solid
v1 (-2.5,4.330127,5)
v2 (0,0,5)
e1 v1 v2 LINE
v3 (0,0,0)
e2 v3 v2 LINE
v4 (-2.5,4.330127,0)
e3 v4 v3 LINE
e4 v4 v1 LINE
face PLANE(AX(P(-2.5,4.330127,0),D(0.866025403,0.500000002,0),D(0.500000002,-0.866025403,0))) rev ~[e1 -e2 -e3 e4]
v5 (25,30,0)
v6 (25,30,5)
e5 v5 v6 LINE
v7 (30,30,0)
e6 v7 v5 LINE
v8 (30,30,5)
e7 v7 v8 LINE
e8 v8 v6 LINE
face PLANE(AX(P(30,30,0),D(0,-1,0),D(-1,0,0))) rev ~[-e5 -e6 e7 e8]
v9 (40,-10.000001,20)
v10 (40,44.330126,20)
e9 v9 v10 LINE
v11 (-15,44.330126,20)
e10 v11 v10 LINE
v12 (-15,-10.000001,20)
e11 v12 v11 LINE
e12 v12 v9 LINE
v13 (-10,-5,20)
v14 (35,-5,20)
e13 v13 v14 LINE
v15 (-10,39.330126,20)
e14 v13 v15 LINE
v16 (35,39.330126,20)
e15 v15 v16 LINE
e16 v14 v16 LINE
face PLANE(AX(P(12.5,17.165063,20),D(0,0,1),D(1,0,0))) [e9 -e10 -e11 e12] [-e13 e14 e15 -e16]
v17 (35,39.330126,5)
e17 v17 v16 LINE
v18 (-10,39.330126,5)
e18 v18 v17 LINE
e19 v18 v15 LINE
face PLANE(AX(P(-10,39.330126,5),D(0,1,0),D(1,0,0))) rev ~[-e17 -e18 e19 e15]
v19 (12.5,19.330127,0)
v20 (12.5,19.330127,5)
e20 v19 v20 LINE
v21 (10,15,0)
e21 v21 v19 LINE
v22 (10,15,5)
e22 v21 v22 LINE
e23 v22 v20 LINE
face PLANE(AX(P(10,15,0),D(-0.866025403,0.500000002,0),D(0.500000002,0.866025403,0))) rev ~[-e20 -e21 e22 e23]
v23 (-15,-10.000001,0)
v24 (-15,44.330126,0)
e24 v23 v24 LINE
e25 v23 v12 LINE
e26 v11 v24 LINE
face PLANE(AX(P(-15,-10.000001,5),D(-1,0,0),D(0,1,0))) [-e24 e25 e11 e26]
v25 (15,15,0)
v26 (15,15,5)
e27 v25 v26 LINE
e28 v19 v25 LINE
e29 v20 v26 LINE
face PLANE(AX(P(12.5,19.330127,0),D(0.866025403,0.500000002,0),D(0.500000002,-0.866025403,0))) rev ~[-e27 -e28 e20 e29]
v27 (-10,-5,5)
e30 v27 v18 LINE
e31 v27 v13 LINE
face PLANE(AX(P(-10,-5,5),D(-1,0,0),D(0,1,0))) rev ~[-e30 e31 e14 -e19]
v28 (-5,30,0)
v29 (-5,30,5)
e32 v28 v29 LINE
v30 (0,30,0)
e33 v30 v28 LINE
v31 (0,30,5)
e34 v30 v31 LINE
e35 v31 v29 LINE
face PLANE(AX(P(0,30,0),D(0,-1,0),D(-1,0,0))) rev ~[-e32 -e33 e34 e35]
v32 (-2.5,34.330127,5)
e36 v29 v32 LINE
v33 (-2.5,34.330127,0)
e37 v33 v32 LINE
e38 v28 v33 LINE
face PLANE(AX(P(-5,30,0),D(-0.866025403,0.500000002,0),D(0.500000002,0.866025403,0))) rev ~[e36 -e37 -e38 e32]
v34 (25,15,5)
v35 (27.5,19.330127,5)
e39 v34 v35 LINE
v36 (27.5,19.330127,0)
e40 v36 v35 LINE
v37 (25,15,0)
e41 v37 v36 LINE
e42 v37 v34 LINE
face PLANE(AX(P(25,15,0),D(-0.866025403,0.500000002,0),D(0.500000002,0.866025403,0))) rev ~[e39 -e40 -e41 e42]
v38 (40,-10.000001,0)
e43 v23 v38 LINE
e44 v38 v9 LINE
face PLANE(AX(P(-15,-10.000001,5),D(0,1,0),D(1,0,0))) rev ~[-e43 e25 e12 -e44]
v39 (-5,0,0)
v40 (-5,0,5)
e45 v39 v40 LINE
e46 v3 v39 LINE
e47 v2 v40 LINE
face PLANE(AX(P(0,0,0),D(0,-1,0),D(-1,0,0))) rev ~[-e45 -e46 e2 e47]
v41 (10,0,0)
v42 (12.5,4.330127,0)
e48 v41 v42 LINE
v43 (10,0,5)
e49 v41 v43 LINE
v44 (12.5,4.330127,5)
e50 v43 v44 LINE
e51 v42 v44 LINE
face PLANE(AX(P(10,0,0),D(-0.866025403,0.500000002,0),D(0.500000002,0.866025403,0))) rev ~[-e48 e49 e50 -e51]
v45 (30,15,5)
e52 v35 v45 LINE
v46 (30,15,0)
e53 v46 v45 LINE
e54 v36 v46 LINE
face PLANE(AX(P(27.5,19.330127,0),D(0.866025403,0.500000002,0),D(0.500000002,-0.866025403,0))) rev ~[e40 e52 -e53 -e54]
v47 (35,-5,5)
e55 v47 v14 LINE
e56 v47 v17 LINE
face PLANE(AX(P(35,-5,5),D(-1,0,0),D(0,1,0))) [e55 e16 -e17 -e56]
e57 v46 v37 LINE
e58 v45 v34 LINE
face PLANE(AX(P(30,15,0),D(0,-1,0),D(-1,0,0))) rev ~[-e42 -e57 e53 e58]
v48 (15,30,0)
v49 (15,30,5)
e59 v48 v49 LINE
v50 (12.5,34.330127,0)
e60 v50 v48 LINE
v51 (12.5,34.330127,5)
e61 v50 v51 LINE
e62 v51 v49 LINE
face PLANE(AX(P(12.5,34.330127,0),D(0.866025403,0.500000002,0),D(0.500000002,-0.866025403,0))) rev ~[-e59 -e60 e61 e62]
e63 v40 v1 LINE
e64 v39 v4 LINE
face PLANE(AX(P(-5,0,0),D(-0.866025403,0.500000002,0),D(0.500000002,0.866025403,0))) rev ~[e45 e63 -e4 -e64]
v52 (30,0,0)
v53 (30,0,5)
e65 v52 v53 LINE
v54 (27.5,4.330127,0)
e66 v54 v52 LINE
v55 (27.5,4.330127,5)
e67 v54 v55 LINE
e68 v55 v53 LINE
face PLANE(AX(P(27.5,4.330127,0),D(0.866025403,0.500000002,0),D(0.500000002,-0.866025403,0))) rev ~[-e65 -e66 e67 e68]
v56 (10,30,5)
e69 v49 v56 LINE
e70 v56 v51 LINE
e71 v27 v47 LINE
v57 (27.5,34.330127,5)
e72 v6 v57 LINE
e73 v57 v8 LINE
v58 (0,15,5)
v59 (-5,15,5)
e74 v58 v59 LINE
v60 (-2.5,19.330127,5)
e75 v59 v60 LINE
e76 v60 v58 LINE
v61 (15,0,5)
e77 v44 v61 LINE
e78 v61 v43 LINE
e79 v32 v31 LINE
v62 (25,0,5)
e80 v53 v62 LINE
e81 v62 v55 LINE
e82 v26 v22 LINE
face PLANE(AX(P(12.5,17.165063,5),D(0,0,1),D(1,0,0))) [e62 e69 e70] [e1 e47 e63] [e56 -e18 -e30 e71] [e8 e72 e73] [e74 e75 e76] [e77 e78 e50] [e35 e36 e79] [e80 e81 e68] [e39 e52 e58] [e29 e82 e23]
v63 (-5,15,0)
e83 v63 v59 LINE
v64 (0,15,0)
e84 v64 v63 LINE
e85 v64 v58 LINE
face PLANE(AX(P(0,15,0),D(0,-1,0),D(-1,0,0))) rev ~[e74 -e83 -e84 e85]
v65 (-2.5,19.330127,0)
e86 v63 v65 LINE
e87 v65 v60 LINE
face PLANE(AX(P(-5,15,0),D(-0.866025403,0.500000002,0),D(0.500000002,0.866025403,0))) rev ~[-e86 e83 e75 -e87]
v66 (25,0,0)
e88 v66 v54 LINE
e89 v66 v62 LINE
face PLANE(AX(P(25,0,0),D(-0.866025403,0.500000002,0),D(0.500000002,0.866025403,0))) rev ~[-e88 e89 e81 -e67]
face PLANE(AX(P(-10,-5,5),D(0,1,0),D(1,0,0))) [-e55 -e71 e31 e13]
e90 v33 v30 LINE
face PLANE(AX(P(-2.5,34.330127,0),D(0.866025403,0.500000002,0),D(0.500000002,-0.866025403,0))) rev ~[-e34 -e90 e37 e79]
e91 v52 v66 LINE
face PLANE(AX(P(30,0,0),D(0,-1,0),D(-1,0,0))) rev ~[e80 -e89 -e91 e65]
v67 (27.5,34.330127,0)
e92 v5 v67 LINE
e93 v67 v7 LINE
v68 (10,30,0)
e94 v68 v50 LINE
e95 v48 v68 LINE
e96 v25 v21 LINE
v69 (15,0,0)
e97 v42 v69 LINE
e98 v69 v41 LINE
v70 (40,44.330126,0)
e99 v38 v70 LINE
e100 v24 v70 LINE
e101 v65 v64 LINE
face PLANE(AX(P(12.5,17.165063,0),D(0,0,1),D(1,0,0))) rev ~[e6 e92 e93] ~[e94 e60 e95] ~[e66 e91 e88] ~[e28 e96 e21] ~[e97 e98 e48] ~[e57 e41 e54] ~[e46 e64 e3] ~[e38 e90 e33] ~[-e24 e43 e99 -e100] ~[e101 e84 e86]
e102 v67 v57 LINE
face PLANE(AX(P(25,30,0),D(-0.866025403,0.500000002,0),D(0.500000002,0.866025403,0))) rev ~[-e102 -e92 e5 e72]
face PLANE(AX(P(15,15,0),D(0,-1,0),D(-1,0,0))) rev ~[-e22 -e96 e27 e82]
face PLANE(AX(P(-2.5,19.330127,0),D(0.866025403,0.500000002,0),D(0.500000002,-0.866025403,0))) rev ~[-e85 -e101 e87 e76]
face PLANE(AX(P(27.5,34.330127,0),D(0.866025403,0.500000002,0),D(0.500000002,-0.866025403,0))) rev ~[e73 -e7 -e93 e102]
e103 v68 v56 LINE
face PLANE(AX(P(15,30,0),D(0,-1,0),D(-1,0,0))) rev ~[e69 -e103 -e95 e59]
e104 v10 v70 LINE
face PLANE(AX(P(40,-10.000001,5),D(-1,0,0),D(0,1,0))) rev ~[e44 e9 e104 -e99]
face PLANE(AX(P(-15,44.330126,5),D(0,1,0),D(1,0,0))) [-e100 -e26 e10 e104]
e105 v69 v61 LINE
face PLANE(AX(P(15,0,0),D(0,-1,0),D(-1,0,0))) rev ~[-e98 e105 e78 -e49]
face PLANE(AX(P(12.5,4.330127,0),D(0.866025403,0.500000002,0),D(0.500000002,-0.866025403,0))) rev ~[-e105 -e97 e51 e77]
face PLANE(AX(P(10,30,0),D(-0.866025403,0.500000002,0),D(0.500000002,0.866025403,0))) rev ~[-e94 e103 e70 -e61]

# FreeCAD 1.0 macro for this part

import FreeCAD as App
import Part
import Sketcher
Q = App.Units.Quantity

doc = App.newDocument("Part")
body = doc.addObject("PartDesign::Body", "Body")

sketch1 = body.newObject("Sketcher::SketchObject", "Sketch")
sketch1.AttachmentSupport = (doc.getObject("XY_Plane"), [""])
sketch1.MapMode = "FlatFace"
sketch1.addGeometry([
    Part.LineSegment(App.Vector(-15, 44.3, 0), App.Vector(-15, -10, 0)),
    Part.LineSegment(App.Vector(-15, -10, 0), App.Vector(40, -10, 0)),
    Part.LineSegment(App.Vector(40, -10, 0), App.Vector(40, 44.3, 0)),
    Part.LineSegment(App.Vector(40, 44.3, 0), App.Vector(-15, 44.3, 0)),
    Part.LineSegment(App.Vector(0, 0, 0), App.Vector(-5, 0, 0)),
    Part.LineSegment(App.Vector(-5, 0, 0), App.Vector(-2.5, 4.3, 0)),
    Part.LineSegment(App.Vector(-2.5, 4.3, 0), App.Vector(0, 0, 0)),
    Part.LineSegment(App.Vector(12.5, 4.3, 0), App.Vector(15, 0, 0)),
    Part.LineSegment(App.Vector(15, 0, 0), App.Vector(10, 0, 0)),
    Part.LineSegment(App.Vector(10, 0, 0), App.Vector(12.5, 4.3, 0)),
    Part.LineSegment(App.Vector(27.5, 4.3, 0), App.Vector(30, 0, 0)),
    Part.LineSegment(App.Vector(30, 0, 0), App.Vector(25, 0, 0)),
    Part.LineSegment(App.Vector(25, 0, 0), App.Vector(27.5, 4.3, 0)),
    Part.LineSegment(App.Vector(-2.5, 19.3, 0), App.Vector(0, 15, 0)),
    Part.LineSegment(App.Vector(0, 15, 0), App.Vector(-5, 15, 0)),
    Part.LineSegment(App.Vector(-5, 15, 0), App.Vector(-2.5, 19.3, 0)),
    Part.LineSegment(App.Vector(-2.5, 34.3, 0), App.Vector(0, 30, 0)),
    Part.LineSegment(App.Vector(0, 30, 0), App.Vector(-5, 30, 0)),
    Part.LineSegment(App.Vector(-5, 30, 0), App.Vector(-2.5, 34.3, 0)),
    Part.LineSegment(App.Vector(12.5, 19.3, 0), App.Vector(15, 15, 0)),
    Part.LineSegment(App.Vector(15, 15, 0), App.Vector(10, 15, 0)),
    Part.LineSegment(App.Vector(10, 15, 0), App.Vector(12.5, 19.3, 0)),
    Part.LineSegment(App.Vector(27.5, 19.3, 0), App.Vector(30, 15, 0)),
    Part.LineSegment(App.Vector(30, 15, 0), App.Vector(25, 15, 0)),
    Part.LineSegment(App.Vector(25, 15, 0), App.Vector(27.5, 19.3, 0)),
    Part.LineSegment(App.Vector(12.5, 34.3, 0), App.Vector(15, 30, 0)),
    Part.LineSegment(App.Vector(15, 30, 0), App.Vector(10, 30, 0)),
    Part.LineSegment(App.Vector(10, 30, 0), App.Vector(12.5, 34.3, 0)),
    Part.LineSegment(App.Vector(27.5, 34.3, 0), App.Vector(30, 30, 0)),
    Part.LineSegment(App.Vector(30, 30, 0), App.Vector(25, 30, 0)),
    Part.LineSegment(App.Vector(25, 30, 0), App.Vector(27.5, 34.3, 0)),
], False)
sketch1.addConstraint([
    Sketcher.Constraint("Coincident", 0, 2, 1, 1),
    Sketcher.Constraint("Coincident", 1, 2, 2, 1),
    Sketcher.Constraint("Coincident", 2, 2, 3, 1),
    Sketcher.Constraint("Coincident", 3, 2, 0, 1),
    Sketcher.Constraint("Coincident", 4, 2, 5, 1),
    Sketcher.Constraint("Coincident", 5, 2, 6, 1),
    Sketcher.Constraint("Coincident", 6, 2, 4, 1),
    Sketcher.Constraint("Coincident", 7, 2, 8, 1),
    Sketcher.Constraint("Coincident", 8, 2, 9, 1),
    Sketcher.Constraint("Coincident", 9, 2, 7, 1),
    Sketcher.Constraint("Coincident", 10, 2, 11, 1),
    Sketcher.Constraint("Coincident", 11, 2, 12, 1),
    Sketcher.Constraint("Coincident", 12, 2, 10, 1),
    Sketcher.Constraint("Coincident", 13, 2, 14, 1),
    Sketcher.Constraint("Coincident", 14, 2, 15, 1),
    Sketcher.Constraint("Coincident", 15, 2, 13, 1),
    Sketcher.Constraint("Coincident", 16, 2, 17, 1),
    Sketcher.Constraint("Coincident", 17, 2, 18, 1),
    Sketcher.Constraint("Coincident", 18, 2, 16, 1),
    Sketcher.Constraint("Coincident", 19, 2, 20, 1),
    Sketcher.Constraint("Coincident", 20, 2, 21, 1),
    Sketcher.Constraint("Coincident", 21, 2, 19, 1),
    Sketcher.Constraint("Coincident", 22, 2, 23, 1),
    Sketcher.Constraint("Coincident", 23, 2, 24, 1),
    Sketcher.Constraint("Coincident", 24, 2, 22, 1),
    Sketcher.Constraint("Coincident", 25, 2, 26, 1),
    Sketcher.Constraint("Coincident", 26, 2, 27, 1),
    Sketcher.Constraint("Coincident", 27, 2, 25, 1),
    Sketcher.Constraint("Coincident", 28, 2, 29, 1),
    Sketcher.Constraint("Coincident", 29, 2, 30, 1),
    Sketcher.Constraint("Coincident", 30, 2, 28, 1),
    Sketcher.Constraint("Vertical", 0),
    Sketcher.Constraint("Horizontal", 1),
    Sketcher.Constraint("Vertical", 2),
    Sketcher.Constraint("Horizontal", 3),
    Sketcher.Constraint("Horizontal", 4),
    Sketcher.Constraint("Horizontal", 8),
    Sketcher.Constraint("Horizontal", 11),
    Sketcher.Constraint("Horizontal", 14),
    Sketcher.Constraint("Horizontal", 17),
    Sketcher.Constraint("Horizontal", 20),
    Sketcher.Constraint("Horizontal", 23),
    Sketcher.Constraint("Horizontal", 26),
    Sketcher.Constraint("Horizontal", 29),
    Sketcher.Constraint("Coincident", 6, 2, -1, 1),
    Sketcher.Constraint("PointOnObject", 7, 2, -1),
    Sketcher.Constraint("PointOnObject", 10, 2, -1),
    Sketcher.Constraint("PointOnObject", 13, 2, -2),
    Sketcher.Constraint("PointOnObject", 16, 2, -2),
    Sketcher.Constraint("Parallel", 6, 7),
    Sketcher.Constraint("Parallel", 5, 9),
    Sketcher.Constraint("Parallel", 7, 10),
    Sketcher.Constraint("Parallel", 9, 12),
    Sketcher.Constraint("Parallel", 10, 13),
    Sketcher.Constraint("Parallel", 12, 15),
    Sketcher.Constraint("Parallel", 13, 16),
    Sketcher.Constraint("Parallel", 15, 18),
    Sketcher.Constraint("Parallel", 16, 19),
    Sketcher.Constraint("Parallel", 18, 21),
    Sketcher.Constraint("Parallel", 19, 22),
    Sketcher.Constraint("Parallel", 21, 24),
    Sketcher.Constraint("Parallel", 22, 25),
    Sketcher.Constraint("Parallel", 24, 27),
    Sketcher.Constraint("Parallel", 25, 28),
    Sketcher.Constraint("Parallel", 27, 30),
    Sketcher.Constraint("Horizontal", 5, 2, 9, 2),
    Sketcher.Constraint("Horizontal", 9, 2, 12, 2),
    Sketcher.Constraint("Horizontal", 14, 2, 19, 2),
    Sketcher.Constraint("Horizontal", 15, 2, 21, 2),
    Sketcher.Constraint("Horizontal", 20, 2, 22, 2),
    Sketcher.Constraint("Horizontal", 21, 2, 24, 2),
    Sketcher.Constraint("Horizontal", 17, 2, 25, 2),
    Sketcher.Constraint("Horizontal", 18, 2, 27, 2),
    Sketcher.Constraint("Horizontal", 26, 2, 28, 2),
    Sketcher.Constraint("Horizontal", 27, 2, 30, 2),
    Sketcher.Constraint("Vertical", 4, 2, 14, 2),
    Sketcher.Constraint("Vertical", 14, 2, 17, 2),
    Sketcher.Constraint("Vertical", 7, 2, 19, 2),
    Sketcher.Constraint("Vertical", 10, 2, 22, 2),
    Sketcher.Constraint("Vertical", 19, 2, 25, 2),
    Sketcher.Constraint("Vertical", 22, 2, 28, 2),
    Sketcher.Constraint("Equal", 5, 6),
    Sketcher.Constraint("DistanceX", 1, 1, 1, 2, 55.0),
    Sketcher.Constraint("DistanceX", 4, 2, 4, 1, 5.0),
    Sketcher.Constraint("Angle", 5, Q("60 deg")),
    Sketcher.Constraint("DistanceX", 0, 2, -1, 1, 15.0),
    Sketcher.Constraint("DistanceY", 0, 2, -1, 1, 10.000001),
    Sketcher.Constraint("DistanceX", -1, 1, 7, 2, 15.0),
    Sketcher.Constraint("DistanceX", -1, 1, 10, 2, 30.0),
    Sketcher.Constraint("DistanceY", -1, 1, 13, 2, 15.0),
    Sketcher.Constraint("DistanceY", -1, 1, 16, 2, 30.0),
    Sketcher.Constraint("DistanceY", 5, 2, 3, 2, 40.0),
])
pad1 = body.newObject("PartDesign::Pad", "Pad")
pad1.Profile = sketch1
pad1.Length = 5

sketch2 = body.newObject("Sketcher::SketchObject", "Sketch001")
sketch2.AttachmentSupport = (doc.getObject("XY_Plane"), [""])
sketch2.MapMode = "FlatFace"
sketch2.AttachmentOffset = App.Placement(App.Vector(0, 0, 5), App.Rotation())
sketch2.addGeometry([
    Part.LineSegment(App.Vector(-15, 44, 0), App.Vector(-15, -10, 0)),
    Part.LineSegment(App.Vector(-15, -10, 0), App.Vector(40, -10, 0)),
    Part.LineSegment(App.Vector(40, -10, 0), App.Vector(40, 44, 0)),
    Part.LineSegment(App.Vector(40, 44, 0), App.Vector(-15, 44, 0)),
    Part.LineSegment(App.Vector(35, -5, 0), App.Vector(-10, -5, 0)),
    Part.LineSegment(App.Vector(-10, -5, 0), App.Vector(-10, 39, 0)),
    Part.LineSegment(App.Vector(-10, 39, 0), App.Vector(35, 39, 0)),
    Part.LineSegment(App.Vector(35, 39, 0), App.Vector(35, -5, 0)),
], False)
sketch2.addConstraint([
    Sketcher.Constraint("Coincident", 0, 2, 1, 1),
    Sketcher.Constraint("Coincident", 1, 2, 2, 1),
    Sketcher.Constraint("Coincident", 2, 2, 3, 1),
    Sketcher.Constraint("Coincident", 3, 2, 0, 1),
    Sketcher.Constraint("Coincident", 4, 2, 5, 1),
    Sketcher.Constraint("Coincident", 5, 2, 6, 1),
    Sketcher.Constraint("Coincident", 6, 2, 7, 1),
    Sketcher.Constraint("Coincident", 7, 2, 4, 1),
    Sketcher.Constraint("Vertical", 0),
    Sketcher.Constraint("Horizontal", 1),
    Sketcher.Constraint("Vertical", 2),
    Sketcher.Constraint("Horizontal", 3),
    Sketcher.Constraint("Horizontal", 4),
    Sketcher.Constraint("Vertical", 5),
    Sketcher.Constraint("Horizontal", 6),
    Sketcher.Constraint("Vertical", 7),
    Sketcher.Constraint("DistanceX", 1, 1, 1, 2, 55.0),
    Sketcher.Constraint("DistanceX", 4, 2, 4, 1, 45.0),
    Sketcher.Constraint("DistanceX", 0, 2, -1, 1, 15.0),
    Sketcher.Constraint("DistanceY", 0, 2, -1, 1, 10.000001),
    Sketcher.Constraint("DistanceX", 4, 2, -1, 1, 10.0),
    Sketcher.Constraint("DistanceY", 4, 2, -1, 1, 5.0),
    Sketcher.Constraint("DistanceY", 5, 2, 3, 2, 5.0),
    Sketcher.Constraint("DistanceY", 0, 2, 0, 1, 54.330127),
])
pad2 = body.newObject("PartDesign::Pad", "Pad001")
pad2.Profile = sketch2
pad2.Length = 15

doc.recompute()
